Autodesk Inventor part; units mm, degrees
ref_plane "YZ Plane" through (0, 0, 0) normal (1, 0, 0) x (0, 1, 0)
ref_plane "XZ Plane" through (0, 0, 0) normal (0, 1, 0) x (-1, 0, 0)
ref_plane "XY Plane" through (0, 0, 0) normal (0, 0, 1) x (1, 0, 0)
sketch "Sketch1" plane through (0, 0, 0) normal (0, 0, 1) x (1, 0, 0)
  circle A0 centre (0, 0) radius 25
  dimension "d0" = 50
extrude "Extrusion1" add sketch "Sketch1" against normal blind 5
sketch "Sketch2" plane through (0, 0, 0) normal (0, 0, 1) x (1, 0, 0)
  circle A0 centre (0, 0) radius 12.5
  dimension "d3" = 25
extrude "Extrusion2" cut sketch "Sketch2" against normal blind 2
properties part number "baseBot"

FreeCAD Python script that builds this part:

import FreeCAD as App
import Part
import Sketcher
from FreeCAD import Vector
Q = App.Units.Quantity

doc = App.newDocument("Part")
body = doc.addObject("PartDesign::Body", "Body")

sketch1 = body.newObject("Sketcher::SketchObject", "Sketch")
sketch1.AttachmentSupport = (doc.getObject("XY_Plane"), [""])
sketch1.MapMode = "FlatFace"
sketch1.addGeometry(Part.Circle(Vector(0, 0, 0), Vector(0, 0, 1), 25), False)
sketch1.addConstraint([
    Sketcher.Constraint("Coincident", 0, 3, -1, 1),
    Sketcher.Constraint("Diameter", 0, Q("50 mm")),
])
pad1 = body.newObject("PartDesign::Pad", "Pad")
pad1.Profile = sketch1
pad1.Length = 5
pad1.Reversed = True

sketch2 = body.newObject("Sketcher::SketchObject", "Sketch001")
sketch2.AttachmentSupport = (doc.getObject("XY_Plane"), [""])
sketch2.MapMode = "FlatFace"
sketch2.addGeometry(Part.Circle(Vector(0, 0, 0), Vector(0, 0, 1), 12), False)
sketch2.addConstraint([
    Sketcher.Constraint("Coincident", 0, 3, -1, 1),
    Sketcher.Constraint("Diameter", 0, Q("25 mm")),
])
pocket1 = body.newObject("PartDesign::Pocket", "Pocket")
pocket1.Profile = sketch2
pocket1.Length = 2

doc.recompute()
